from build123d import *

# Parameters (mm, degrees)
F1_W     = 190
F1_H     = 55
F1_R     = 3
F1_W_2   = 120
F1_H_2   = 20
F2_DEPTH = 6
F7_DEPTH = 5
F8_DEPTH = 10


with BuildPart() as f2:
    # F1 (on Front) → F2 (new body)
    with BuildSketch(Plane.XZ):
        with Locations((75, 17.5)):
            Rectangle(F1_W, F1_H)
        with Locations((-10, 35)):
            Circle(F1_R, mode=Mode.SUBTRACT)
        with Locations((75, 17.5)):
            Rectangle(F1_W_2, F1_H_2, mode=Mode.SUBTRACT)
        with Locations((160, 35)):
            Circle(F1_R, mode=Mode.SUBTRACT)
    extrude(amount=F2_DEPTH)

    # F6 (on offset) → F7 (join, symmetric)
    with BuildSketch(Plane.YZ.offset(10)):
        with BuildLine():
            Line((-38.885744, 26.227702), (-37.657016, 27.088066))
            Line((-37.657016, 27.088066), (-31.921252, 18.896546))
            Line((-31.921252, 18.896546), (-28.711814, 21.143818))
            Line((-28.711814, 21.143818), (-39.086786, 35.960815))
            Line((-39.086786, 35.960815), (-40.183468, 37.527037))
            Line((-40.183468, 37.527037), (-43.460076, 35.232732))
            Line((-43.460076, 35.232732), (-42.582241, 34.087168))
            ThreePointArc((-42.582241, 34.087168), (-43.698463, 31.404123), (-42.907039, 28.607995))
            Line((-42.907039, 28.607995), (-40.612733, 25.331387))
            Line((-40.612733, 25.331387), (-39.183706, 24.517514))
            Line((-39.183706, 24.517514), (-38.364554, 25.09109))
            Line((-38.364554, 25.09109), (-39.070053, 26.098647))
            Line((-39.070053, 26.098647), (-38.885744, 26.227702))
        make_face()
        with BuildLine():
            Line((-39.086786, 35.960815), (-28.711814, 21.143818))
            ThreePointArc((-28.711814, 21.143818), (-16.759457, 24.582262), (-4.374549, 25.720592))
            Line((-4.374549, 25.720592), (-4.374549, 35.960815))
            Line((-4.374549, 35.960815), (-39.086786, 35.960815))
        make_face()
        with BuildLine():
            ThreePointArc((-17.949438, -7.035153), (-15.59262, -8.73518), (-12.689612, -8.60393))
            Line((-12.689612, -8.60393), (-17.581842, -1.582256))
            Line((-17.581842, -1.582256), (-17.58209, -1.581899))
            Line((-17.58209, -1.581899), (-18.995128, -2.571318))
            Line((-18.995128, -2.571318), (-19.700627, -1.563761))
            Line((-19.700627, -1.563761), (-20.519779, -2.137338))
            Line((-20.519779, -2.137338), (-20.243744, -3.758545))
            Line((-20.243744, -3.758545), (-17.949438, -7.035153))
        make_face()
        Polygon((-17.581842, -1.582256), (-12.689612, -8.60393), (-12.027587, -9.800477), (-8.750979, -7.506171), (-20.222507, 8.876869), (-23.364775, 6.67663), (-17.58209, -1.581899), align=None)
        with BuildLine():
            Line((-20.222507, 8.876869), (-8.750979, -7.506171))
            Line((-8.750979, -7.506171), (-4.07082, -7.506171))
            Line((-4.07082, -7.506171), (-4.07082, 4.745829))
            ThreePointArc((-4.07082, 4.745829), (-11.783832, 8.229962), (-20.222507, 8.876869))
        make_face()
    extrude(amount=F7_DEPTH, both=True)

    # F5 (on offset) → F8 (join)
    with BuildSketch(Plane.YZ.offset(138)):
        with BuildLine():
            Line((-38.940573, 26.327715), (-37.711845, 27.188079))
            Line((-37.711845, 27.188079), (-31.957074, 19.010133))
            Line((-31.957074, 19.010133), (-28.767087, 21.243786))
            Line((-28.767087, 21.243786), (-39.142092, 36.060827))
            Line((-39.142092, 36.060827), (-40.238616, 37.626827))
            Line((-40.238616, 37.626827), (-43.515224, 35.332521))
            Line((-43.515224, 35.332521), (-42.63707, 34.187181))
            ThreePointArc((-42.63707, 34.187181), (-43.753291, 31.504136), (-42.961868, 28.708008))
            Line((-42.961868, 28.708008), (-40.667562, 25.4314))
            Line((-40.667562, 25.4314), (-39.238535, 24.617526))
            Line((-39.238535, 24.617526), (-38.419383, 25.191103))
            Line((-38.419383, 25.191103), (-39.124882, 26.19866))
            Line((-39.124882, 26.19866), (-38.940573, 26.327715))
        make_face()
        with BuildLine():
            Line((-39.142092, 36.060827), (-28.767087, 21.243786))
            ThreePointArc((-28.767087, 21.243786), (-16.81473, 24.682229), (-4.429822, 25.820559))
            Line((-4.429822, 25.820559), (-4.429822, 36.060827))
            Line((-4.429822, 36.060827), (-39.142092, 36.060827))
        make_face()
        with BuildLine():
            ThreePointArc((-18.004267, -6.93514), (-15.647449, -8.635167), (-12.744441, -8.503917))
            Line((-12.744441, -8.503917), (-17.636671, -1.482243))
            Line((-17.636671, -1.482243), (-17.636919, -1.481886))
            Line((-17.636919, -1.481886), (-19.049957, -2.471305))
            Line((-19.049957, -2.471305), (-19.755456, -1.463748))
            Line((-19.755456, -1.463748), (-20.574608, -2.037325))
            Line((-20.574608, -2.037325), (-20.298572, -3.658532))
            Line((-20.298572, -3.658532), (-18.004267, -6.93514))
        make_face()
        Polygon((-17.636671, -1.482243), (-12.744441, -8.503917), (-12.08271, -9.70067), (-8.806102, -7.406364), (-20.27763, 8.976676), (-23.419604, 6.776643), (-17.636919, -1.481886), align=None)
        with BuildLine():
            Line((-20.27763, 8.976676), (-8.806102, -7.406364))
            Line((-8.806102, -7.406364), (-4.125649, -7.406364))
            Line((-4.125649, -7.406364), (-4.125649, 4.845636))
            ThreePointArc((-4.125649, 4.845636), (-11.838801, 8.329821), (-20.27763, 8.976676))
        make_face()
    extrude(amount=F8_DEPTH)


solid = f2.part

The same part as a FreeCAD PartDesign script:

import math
import FreeCAD as App
import Part
import Sketcher

V = App.Vector
Q = App.Units.Quantity

doc = App.newDocument("Part")
body = doc.addObject("PartDesign::Body", "Body")

# Sketch on XZ plane
sketch1 = body.newObject("Sketcher::SketchObject", "Sketch")
sketch1.AttachmentSupport = (doc.getObject("XZ_Plane"), [""])
sketch1.MapMode = "FlatFace"
sketch1.addGeometry([
    Part.LineSegment(V(-20, 45, 0), V(-20, -10, 0)),  # 0
    Part.LineSegment(V(-20, -10, 0), V(170, -10, 0)),  # 1
    Part.LineSegment(V(170, -10, 0), V(170, 45, 0)),  # 2
    Part.LineSegment(V(170, 45, 0), V(-20, 45, 0)),  # 3
    Part.LineSegment(V(135, 7.5, 0), V(15, 7.5, 0)),  # 4
    Part.LineSegment(V(15, 7.5, 0), V(15, 27.5, 0)),  # 5
    Part.LineSegment(V(15, 27.5, 0), V(135, 27.5, 0)),  # 6
    Part.LineSegment(V(135, 27.5, 0), V(135, 7.5, 0)),  # 7
    Part.Circle(V(-10, 35, 0), V(0, 0, 1), 3),  # 8
    Part.Circle(V(160, 35, 0), V(0, 0, 1), 3),  # 9
], False)
sketch1.addConstraint([
    Sketcher.Constraint("Coincident", 0, 2, 1, 1),
    Sketcher.Constraint("Coincident", 1, 2, 2, 1),
    Sketcher.Constraint("Coincident", 2, 2, 3, 1),
    Sketcher.Constraint("Coincident", 3, 2, 0, 1),
    Sketcher.Constraint("Coincident", 4, 2, 5, 1),
    Sketcher.Constraint("Coincident", 5, 2, 6, 1),
    Sketcher.Constraint("Coincident", 6, 2, 7, 1),
    Sketcher.Constraint("Coincident", 7, 2, 4, 1),
    Sketcher.Constraint("Vertical", 0),
    Sketcher.Constraint("Horizontal", 1),
    Sketcher.Constraint("Vertical", 2),
    Sketcher.Constraint("Horizontal", 3),
    Sketcher.Constraint("Horizontal", 4),
    Sketcher.Constraint("Vertical", 5),
    Sketcher.Constraint("Horizontal", 6),
    Sketcher.Constraint("Vertical", 7),
    Sketcher.Constraint("Equal", 8, 9),
    Sketcher.Constraint("Horizontal", 8, 3, 9, 3),
    Sketcher.Constraint("Diameter", 8, 6.0),
    Sketcher.Constraint("DistanceX", 1, 1, 1, 2, 190.0),
    Sketcher.Constraint("DistanceX", 4, 2, 4, 1, 120.0),
    Sketcher.Constraint("DistanceY", 0, 2, 0, 1, 55.0),
    Sketcher.Constraint("DistanceY", 5, 1, 5, 2, 20.0),
    Sketcher.Constraint("DistanceX", 8, 3, -1, 1, 10.0),
    Sketcher.Constraint("DistanceY", -1, 1, 8, 3, 35.0),
    Sketcher.Constraint("DistanceX", -1, 1, 9, 3, 160.0),
    Sketcher.Constraint("DistanceX", 0, 2, -1, 1, 20.0),
    Sketcher.Constraint("DistanceY", 0, 2, -1, 1, 10.0),
    Sketcher.Constraint("DistanceX", -1, 1, 4, 2, 15.0),
    Sketcher.Constraint("DistanceY", -1, 1, 4, 2, 7.5),
])
pad1 = body.newObject("PartDesign::Pad", "Pad")
pad1.Profile = sketch1
pad1.Length = 6

# Sketch on YZ plane
sketch2 = body.newObject("Sketcher::SketchObject", "Sketch001")
sketch2.AttachmentSupport = (doc.getObject("YZ_Plane"), [""])
sketch2.MapMode = "FlatFace"
sketch2.AttachmentOffset = App.Placement(V(0, 0, 10), App.Rotation())
sketch2.addGeometry([
    Part.LineSegment(V(-38.885744, 26.227702, 0), V(-37.657016, 27.088066, 0)),  # 0
    Part.LineSegment(V(-37.657016, 27.088066, 0), V(-31.921252, 18.896546, 0)),  # 1
    Part.LineSegment(V(-31.921252, 18.896546, 0), V(-28.711814, 21.143818, 0)),  # 2
    Part.ArcOfCircle(Part.Circle(V(-4.544728, -40.370277, 0), V(0, 0, 1), 66.091088), math.radians(89.852468), math.radians(111.448409)),  # 3
    Part.LineSegment(V(-4.374549, 25.720592, 0), V(-4.374549, 35.960815, 0)),  # 4
    Part.LineSegment(V(-4.374549, 35.960815, 0), V(-39.086786, 35.960815, 0)),  # 5
    Part.LineSegment(V(-39.086786, 35.960815, 0), V(-40.183468, 37.527037, 0)),  # 6
    Part.LineSegment(V(-40.183468, 37.527037, 0), V(-43.460076, 35.232732, 0)),  # 7
    Part.LineSegment(V(-43.460076, 35.232732, 0), V(-42.582241, 34.087168, 0)),  # 8
    Part.ArcOfCircle(Part.Circle(V(-39.287208, 31.14263, 0), V(0, 0, 1), 4.418998), math.radians(138.215087), math.radians(215.00002)),  # 9
    Part.LineSegment(V(-42.907039, 28.607995, 0), V(-40.612733, 25.331387, 0)),  # 10
    Part.LineSegment(V(-40.612733, 25.331387, 0), V(-39.183706, 24.517514, 0)),  # 11
    Part.LineSegment(V(-39.183706, 24.517514, 0), V(-38.364554, 25.09109, 0)),  # 12
    Part.LineSegment(V(-38.364554, 25.09109, 0), V(-39.070053, 26.098647, 0)),  # 13
    Part.LineSegment(V(-39.070053, 26.098647, 0), V(-38.885744, 26.227702, 0)),  # 14
    Part.ArcOfCircle(Part.Circle(V(-14.329605, -4.500519, 0), V(0, 0, 1), 4.418999), math.radians(-145.000007), math.radians(-68.215094)),  # 15
    Part.LineSegment(V(-12.689612, -8.60393, 0), V(-12.027587, -9.800477, 0)),  # 16
    Part.LineSegment(V(-12.027587, -9.800477, 0), V(-8.750979, -7.506171, 0)),  # 17
    Part.LineSegment(V(-8.750979, -7.506171, 0), V(-4.07082, -7.506171, 0)),  # 18
    Part.LineSegment(V(-4.07082, -7.506171, 0), V(-4.07082, 4.745829, 0)),  # 19
    Part.ArcOfCircle(Part.Circle(V(-17.844517, -15.466323, 0), V(0, 0, 1), 24.459064), math.radians(55.727281), math.radians(95.579295)),  # 20
    Part.LineSegment(V(-20.222507, 8.876869, 0), V(-23.364775, 6.67663, 0)),  # 21
    Part.LineSegment(V(-23.364775, 6.67663, 0), V(-17.58209, -1.581899, 0)),  # 22
    Part.LineSegment(V(-17.58209, -1.581899, 0), V(-18.995128, -2.571318, 0)),  # 23
    Part.LineSegment(V(-18.995128, -2.571318, 0), V(-19.700627, -1.563761, 0)),  # 24
    Part.LineSegment(V(-19.700627, -1.563761, 0), V(-20.519779, -2.137338, 0)),  # 25
    Part.LineSegment(V(-20.519779, -2.137338, 0), V(-20.243744, -3.758545, 0)),  # 26
    Part.LineSegment(V(-20.243744, -3.758545, 0), V(-17.949438, -7.035153, 0)),  # 27
], False)
sketch2.addConstraint([
    Sketcher.Constraint("Coincident", 0, 2, 1, 1),
    Sketcher.Constraint("Coincident", 1, 2, 2, 1),
    Sketcher.Constraint("Coincident", 2, 2, 3, 2),
    Sketcher.Constraint("Coincident", 3, 1, 4, 1),
    Sketcher.Constraint("Coincident", 4, 2, 5, 1),
    Sketcher.Constraint("Coincident", 5, 2, 6, 1),
    Sketcher.Constraint("Coincident", 6, 2, 7, 1),
    Sketcher.Constraint("Coincident", 7, 2, 8, 1),
    Sketcher.Constraint("Coincident", 8, 2, 9, 1),
    Sketcher.Constraint("Coincident", 9, 2, 10, 1),
    Sketcher.Constraint("Coincident", 10, 2, 11, 1),
    Sketcher.Constraint("Coincident", 11, 2, 12, 1),
    Sketcher.Constraint("Coincident", 12, 2, 13, 1),
    Sketcher.Constraint("Coincident", 13, 2, 14, 1),
    Sketcher.Constraint("Coincident", 14, 2, 0, 1),
    Sketcher.Constraint("Coincident", 15, 2, 16, 1),
    Sketcher.Constraint("Coincident", 16, 2, 17, 1),
    Sketcher.Constraint("Coincident", 17, 2, 18, 1),
    Sketcher.Constraint("Coincident", 18, 2, 19, 1),
    Sketcher.Constraint("Coincident", 19, 2, 20, 1),
    Sketcher.Constraint("Coincident", 20, 2, 21, 1),
    Sketcher.Constraint("Coincident", 21, 2, 22, 1),
    Sketcher.Constraint("Coincident", 22, 2, 23, 1),
    Sketcher.Constraint("Coincident", 23, 2, 24, 1),
    Sketcher.Constraint("Coincident", 24, 2, 25, 1),
    Sketcher.Constraint("Coincident", 25, 2, 26, 1),
    Sketcher.Constraint("Coincident", 26, 2, 27, 1),
    Sketcher.Constraint("Coincident", 27, 2, 15, 1),
    Sketcher.Constraint("Vertical", 4),
    Sketcher.Constraint("Horizontal", 5),
    Sketcher.Constraint("Horizontal", 18),
    Sketcher.Constraint("Vertical", 19),
    Sketcher.Constraint("Distance", 1, 9.999999),
    Sketcher.Constraint("Distance", 7, 3.999999),
    Sketcher.Constraint("Distance", 10, 4.0),
    Sketcher.Constraint("Distance", 12, 1.0),
    Sketcher.Constraint("Distance", 17, 4.0),
    Sketcher.Constraint("Distance", 25, 1.0),
    Sketcher.Constraint("Distance", 27, 4.0),
    Sketcher.Constraint("Radius", 9, 4.418998),
    Sketcher.Constraint("Radius", 15, 4.418999),
    Sketcher.Constraint("Distance", 0, 1.5),
    Sketcher.Constraint("Distance", 13, 1.23),
    Sketcher.Constraint("Distance", 24, 1.23),
    Sketcher.Constraint("DistanceY", 19, 1, 19, 2, 12.252),
    Sketcher.Constraint("Radius", 3, 66.091088),
    Sketcher.Constraint("Distance", 2, 3.918),
    Sketcher.Constraint("Distance", 14, 0.225),
    Sketcher.Constraint("Distance", 21, 3.836001),
    Sketcher.Constraint("Distance", 23, 1.725),
    Sketcher.Constraint("Radius", 20, 24.459064),
    Sketcher.Constraint("DistanceX", 18, 1, 18, 2, 4.680159),
    Sketcher.Constraint("DistanceY", 22, 2, -1, 1, 1.581899),
    Sketcher.Constraint("DistanceX", 0, 2, 20, 3, 19.812499),
    Sketcher.Constraint("DistanceX", 0, 2, 2, 2, 8.945202),
    Sketcher.Constraint("DistanceY", 0, 2, 8, 2, 6.999102),
    Sketcher.Constraint("DistanceX", 13, 2, 12, 2, 0.705499),
    Sketcher.Constraint("DistanceY", 3, 3, 16, 2, 30.5698),
    Sketcher.Constraint("DistanceX", 20, 2, 15, 3, 5.892902),
    Sketcher.Constraint("DistanceY", 15, 2, 20, 2, 17.480799),
    Sketcher.Constraint("DistanceY", 15, 3, 23, 2, 1.929201),
    Sketcher.Constraint("DistanceX", 24, 2, 23, 2, 0.705499),
    Sketcher.Constraint("Distance", 8, 1.443229),
    Sketcher.Constraint("Distance", 11, 1.644539),
    Sketcher.Constraint("Distance", 16, 1.36748),
    Sketcher.Constraint("Distance", 26, 1.644539),
    Sketcher.Constraint("DistanceX", 5, 2, 5, 1, 34.712237),
    Sketcher.Constraint("DistanceY", 4, 1, 4, 2, 10.240223),
    Sketcher.Constraint("DistanceX", 3, 3, -1, 1, 4.544728),
    Sketcher.Constraint("DistanceX", 9, 3, -1, 1, 39.287208),
    Sketcher.Constraint("DistanceY", -1, 1, 9, 3, 31.14263),
    Sketcher.Constraint("DistanceY", 15, 3, -1, 1, 4.500519),
    Sketcher.Constraint("DistanceX", 1, 2, -1, 1, 31.921252),
    Sketcher.Constraint("DistanceX", 3, 1, -1, 1, 4.374549),
    Sketcher.Constraint("DistanceX", 8, 2, -1, 1, 42.582241),
    Sketcher.Constraint("DistanceX", 9, 2, -1, 1, 42.907039),
    Sketcher.Constraint("DistanceY", -1, 1, 12, 2, 25.09109),
    Sketcher.Constraint("DistanceX", 15, 2, -1, 1, 12.689612),
    Sketcher.Constraint("DistanceY", 15, 2, -1, 1, 8.60393),
    Sketcher.Constraint("DistanceX", 17, 2, -1, 1, 8.750979),
    Sketcher.Constraint("DistanceY", -1, 1, 21, 2, 6.67663),
    Sketcher.Constraint("DistanceX", 22, 2, -1, 1, 17.58209),
    Sketcher.Constraint("DistanceX", 25, 2, -1, 1, 20.519779),
    Sketcher.Constraint("DistanceX", 27, 2, -1, 1, 17.949438),
    Sketcher.Constraint("DistanceX", 6, 2, 9, 3, 0.89626),
    Sketcher.Constraint("DistanceY", 0, 2, 6, 2, 10.438971),
    Sketcher.Constraint("DistanceY", 10, 2, 0, 2, 1.756679),
    Sketcher.Constraint("DistanceX", 13, 2, 14, 2, 0.184309),
])
pad2 = body.newObject("PartDesign::Pad", "Pad001")
pad2.Profile = sketch2
pad2.Length = 10
pad2.Midplane = True

# Sketch on YZ plane
sketch3 = body.newObject("Sketcher::SketchObject", "Sketch002")
sketch3.AttachmentSupport = (doc.getObject("YZ_Plane"), [""])
sketch3.MapMode = "FlatFace"
sketch3.AttachmentOffset = App.Placement(V(0, 0, 138), App.Rotation())
sketch3.addGeometry([
    Part.LineSegment(V(-38.94, 26.33, 0), V(-37.71, 27.19, 0)),  # 0
    Part.LineSegment(V(-37.71, 27.19, 0), V(-31.96, 19.01, 0)),  # 1
    Part.LineSegment(V(-31.96, 19.01, 0), V(-28.77, 21.24, 0)),  # 2
    Part.ArcOfCircle(Part.Circle(V(-4.6, -40.27, 0), V(0, 0, 1), 66.09), math.radians(90), math.radians(111)),  # 3
    Part.LineSegment(V(-4.43, 25.82, 0), V(-4.43, 36.06, 0)),  # 4
    Part.LineSegment(V(-4.43, 36.06, 0), V(-39.14, 36.06, 0)),  # 5
    Part.LineSegment(V(-39.14, 36.06, 0), V(-40.24, 37.63, 0)),  # 6
    Part.LineSegment(V(-40.24, 37.63, 0), V(-43.52, 35.33, 0)),  # 7
    Part.LineSegment(V(-43.52, 35.33, 0), V(-42.64, 34.19, 0)),  # 8
    Part.ArcOfCircle(Part.Circle(V(-39.34, 31.24, 0), V(0, 0, 1), 4.42), math.radians(138), math.radians(215)),  # 9
    Part.LineSegment(V(-42.96, 28.71, 0), V(-40.67, 25.43, 0)),  # 10
    Part.LineSegment(V(-40.67, 25.43, 0), V(-39.24, 24.62, 0)),  # 11
    Part.LineSegment(V(-39.24, 24.62, 0), V(-38.42, 25.19, 0)),  # 12
    Part.LineSegment(V(-38.42, 25.19, 0), V(-39.12, 26.2, 0)),  # 13
    Part.LineSegment(V(-39.12, 26.2, 0), V(-38.94, 26.33, 0)),  # 14
    Part.ArcOfCircle(Part.Circle(V(-14.38, -4.4, 0), V(0, 0, 1), 4.42), math.radians(-145), math.radians(-68)),  # 15
    Part.LineSegment(V(-12.74, -8.5, 0), V(-12.08, -9.7, 0)),  # 16
    Part.LineSegment(V(-12.08, -9.7, 0), V(-8.81, -7.41, 0)),  # 17
    Part.LineSegment(V(-8.81, -7.41, 0), V(-4.13, -7.41, 0)),  # 18
    Part.LineSegment(V(-4.13, -7.41, 0), V(-4.13, 4.85, 0)),  # 19
    Part.ArcOfCircle(Part.Circle(V(-17.9, -15.37, 0), V(0, 0, 1), 24.46), math.radians(56), math.radians(96)),  # 20
    Part.LineSegment(V(-20.28, 8.98, 0), V(-23.42, 6.78, 0)),  # 21
    Part.LineSegment(V(-23.42, 6.78, 0), V(-17.64, -1.48, 0)),  # 22
    Part.LineSegment(V(-17.64, -1.48, 0), V(-19.05, -2.47, 0)),  # 23
    Part.LineSegment(V(-19.05, -2.47, 0), V(-19.76, -1.46, 0)),  # 24
    Part.LineSegment(V(-19.76, -1.46, 0), V(-20.57, -2.04, 0)),  # 25
    Part.LineSegment(V(-20.57, -2.04, 0), V(-20.3, -3.66, 0)),  # 26
    Part.LineSegment(V(-20.3, -3.66, 0), V(-18, -6.94, 0)),  # 27
], False)
sketch3.addConstraint([
    Sketcher.Constraint("Coincident", 0, 2, 1, 1),
    Sketcher.Constraint("Coincident", 1, 2, 2, 1),
    Sketcher.Constraint("Coincident", 2, 2, 3, 2),
    Sketcher.Constraint("Coincident", 3, 1, 4, 1),
    Sketcher.Constraint("Coincident", 4, 2, 5, 1),
    Sketcher.Constraint("Coincident", 5, 2, 6, 1),
    Sketcher.Constraint("Coincident", 6, 2, 7, 1),
    Sketcher.Constraint("Coincident", 7, 2, 8, 1),
    Sketcher.Constraint("Coincident", 8, 2, 9, 1),
    Sketcher.Constraint("Tangent", 9, 2, 10, 1),
    Sketcher.Constraint("Coincident", 10, 2, 11, 1),
    Sketcher.Constraint("Coincident", 11, 2, 12, 1),
    Sketcher.Constraint("Coincident", 12, 2, 13, 1),
    Sketcher.Constraint("Coincident", 13, 2, 14, 1),
    Sketcher.Constraint("Coincident", 14, 2, 0, 1),
    Sketcher.Constraint("Coincident", 15, 2, 16, 1),
    Sketcher.Constraint("Coincident", 16, 2, 17, 1),
    Sketcher.Constraint("Coincident", 17, 2, 18, 1),
    Sketcher.Constraint("Coincident", 18, 2, 19, 1),
    Sketcher.Constraint("Coincident", 19, 2, 20, 1),
    Sketcher.Constraint("Coincident", 20, 2, 21, 1),
    Sketcher.Constraint("Coincident", 21, 2, 22, 1),
    Sketcher.Constraint("Coincident", 22, 2, 23, 1),
    Sketcher.Constraint("Coincident", 23, 2, 24, 1),
    Sketcher.Constraint("Coincident", 24, 2, 25, 1),
    Sketcher.Constraint("Coincident", 25, 2, 26, 1),
    Sketcher.Constraint("Coincident", 26, 2, 27, 1),
    Sketcher.Constraint("Tangent", 27, 2, 15, 1),
    Sketcher.Constraint("Vertical", 4),
    Sketcher.Constraint("Horizontal", 5),
    Sketcher.Constraint("Horizontal", 18),
    Sketcher.Constraint("Vertical", 19),
    Sketcher.Constraint("Parallel", 0, 2),
    Sketcher.Constraint("Perpendicular", 2, 6),
    Sketcher.Constraint("Perpendicular", 6, 7),
    Sketcher.Constraint("Perpendicular", 7, 10),
    Sketcher.Constraint("Perpendicular", 10, 12),
    Sketcher.Constraint("Perpendicular", 12, 13),
    Sketcher.Constraint("Perpendicular", 13, 14),
    Sketcher.Constraint("Parallel", 14, 17),
    Sketcher.Constraint("Parallel", 17, 21),
    Sketcher.Constraint("Perpendicular", 21, 22),
    Sketcher.Constraint("Perpendicular", 22, 23),
    Sketcher.Constraint("Perpendicular", 23, 24),
    Sketcher.Constraint("Perpendicular", 24, 25),
    Sketcher.Constraint("Perpendicular", 25, 27),
    Sketcher.Constraint("Equal", 7, 10),
    Sketcher.Constraint("Equal", 10, 17),
    Sketcher.Constraint("Equal", 13, 24),
    Sketcher.Constraint("Equal", 12, 25),
    Sketcher.Constraint("Equal", 11, 26),
    Sketcher.Constraint("Equal", 17, 27),
    Sketcher.Constraint("Angle", 0, Q("34.999981 deg")),
    Sketcher.Constraint("Distance", 7, 4.0),
    Sketcher.Constraint("Distance", 12, 1.0),
    Sketcher.Constraint("Radius", 15, 4.418999),
    Sketcher.Constraint("Distance", 0, 1.5),
    Sketcher.Constraint("DistanceX", 3, 3, -1, 1, 4.599999),
    Sketcher.Constraint("Distance", 13, 1.23),
    Sketcher.Constraint("DistanceY", 19, 1, 19, 2, 12.252),
    Sketcher.Constraint("Distance", 14, 0.225),
    Sketcher.Constraint("Distance", 23, 1.725),
    Sketcher.Constraint("Radius", 3, 66.091115),
    Sketcher.Constraint("Radius", 9, 4.419002),
    Sketcher.Constraint("Radius", 20, 24.459057),
    Sketcher.Constraint("DistanceY", 5, 2, 6, 2, 1.566),
    Sketcher.Constraint("DistanceX", 5, 2, 5, 1, 34.71227),
    Sketcher.Constraint("DistanceY", 4, 1, 4, 2, 10.240268),
    Sketcher.Constraint("DistanceY", -1, 1, 10, 2, 25.4314),
    Sketcher.Constraint("DistanceX", 17, 2, -1, 1, 8.806102),
    Sketcher.Constraint("DistanceX", 9, 3, 15, 3, 24.957598),
    Sketcher.Constraint("DistanceX", 9, 2, 8, 2, 0.324798),
    Sketcher.Constraint("DistanceY", 15, 3, 23, 2, 1.929201),
    Sketcher.Constraint("Distance", 1, 9.99981),
    Sketcher.Constraint("Distance", 11, 1.644539),
    Sketcher.Constraint("Distance", 16, 1.367518),
    Sketcher.Constraint("Distance", 21, 3.835642),
    Sketcher.Constraint("DistanceX", 18, 1, 18, 2, 4.680453),
    Sketcher.Constraint("DistanceX", 20, 3, -1, 1, 17.899381),
    Sketcher.Constraint("DistanceY", -1, 1, 0, 2, 27.188079),
    Sketcher.Constraint("DistanceX", 3, 1, -1, 1, 4.429822),
    Sketcher.Constraint("DistanceY", -1, 1, 3, 1, 25.820559),
    Sketcher.Constraint("DistanceX", 8, 2, -1, 1, 42.63707),
    Sketcher.Constraint("DistanceX", 15, 2, -1, 1, 12.744441),
    Sketcher.Constraint("DistanceY", 16, 2, -1, 1, 9.70067),
    Sketcher.Constraint("DistanceX", 0, 2, 1, 2, 5.754771),
])
pad3 = body.newObject("PartDesign::Pad", "Pad002")
pad3.Profile = sketch3
pad3.Length = 10

doc.recompute()
